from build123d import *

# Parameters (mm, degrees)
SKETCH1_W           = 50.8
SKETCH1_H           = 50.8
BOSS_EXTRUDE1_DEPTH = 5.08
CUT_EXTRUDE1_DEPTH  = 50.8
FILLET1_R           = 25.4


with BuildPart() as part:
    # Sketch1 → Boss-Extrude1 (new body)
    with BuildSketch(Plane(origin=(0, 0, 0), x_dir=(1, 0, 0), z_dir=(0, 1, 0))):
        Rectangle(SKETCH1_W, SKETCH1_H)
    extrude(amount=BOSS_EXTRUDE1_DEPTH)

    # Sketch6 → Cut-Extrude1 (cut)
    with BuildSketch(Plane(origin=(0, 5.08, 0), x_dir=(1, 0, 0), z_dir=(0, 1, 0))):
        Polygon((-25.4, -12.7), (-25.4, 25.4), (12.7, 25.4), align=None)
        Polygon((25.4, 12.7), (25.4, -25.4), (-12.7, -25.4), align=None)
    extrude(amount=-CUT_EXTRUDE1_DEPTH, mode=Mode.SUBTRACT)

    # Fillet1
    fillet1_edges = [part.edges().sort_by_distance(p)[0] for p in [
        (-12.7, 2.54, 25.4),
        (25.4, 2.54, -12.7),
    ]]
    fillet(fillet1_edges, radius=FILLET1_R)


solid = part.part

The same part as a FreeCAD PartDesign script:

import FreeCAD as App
import Part
import Sketcher
from FreeCAD import Vector
Q = App.Units.Quantity


def edges_at(feature, points):
    """Names of the edges that pass closest to the given points."""
    edges = feature.Shape.Edges
    near = lambda p: min(range(len(edges)), key=lambda i: edges[i].distToShape(Part.Vertex(*p))[0])
    return sorted({f"Edge{near(p) + 1}" for p in points})

doc = App.newDocument("Part")
params = doc.addObject("Spreadsheet::Sheet", "Params")
for row, (alias, value) in enumerate([
    ("sketch1_width", "2 in"),
    ("pad1_length", "0.2 in"),
    ("sketch2_width", "1.5 in"),
    ("pocket1_length", "2 in"),
    ("fillet_radius", "1 in"),
], start=1):
    params.set(f"A{row}", alias)
    params.set(f"B{row}", "=" + value)
    params.setAlias(f"B{row}", alias)

body = doc.addObject("PartDesign::Body", "Body")

# Sketch on XZ plane
sketch1 = body.newObject("Sketcher::SketchObject", "Sketch")
sketch1.AttachmentSupport = (doc.getObject("XZ_Plane"), [""])
sketch1.MapMode = "FlatFace"
sketch1.addGeometry([
    Part.LineSegment(Vector(-25, -25, 0), Vector(-25, 25, 0)),
    Part.LineSegment(Vector(-25, 25, 0), Vector(25, 25, 0)),
    Part.LineSegment(Vector(25, 25, 0), Vector(25, -25, 0)),
    Part.LineSegment(Vector(25, -25, 0), Vector(-25, -25, 0)),
], False)
sketch1.addConstraint([
    Sketcher.Constraint("Coincident", 0, 2, 1, 1),
    Sketcher.Constraint("Coincident", 1, 2, 2, 1),
    Sketcher.Constraint("Coincident", 2, 2, 3, 1),
    Sketcher.Constraint("Coincident", 3, 2, 0, 1),
    Sketcher.Constraint("Vertical", 0),
    Sketcher.Constraint("Horizontal", 1),
    Sketcher.Constraint("Vertical", 2),
    Sketcher.Constraint("Horizontal", 3),
    Sketcher.Constraint("Symmetric", 0, 2, 2, 2, -1, 1),
    Sketcher.Constraint("Equal", 3, 0),
    Sketcher.Constraint("DistanceX", 1, 1, 1, 2, Q("2 in")),
])
sketch1.setExpression("Constraints[10]", "Params.sketch1_width")
pad1 = body.newObject("PartDesign::Pad", "Pad")
pad1.Profile = sketch1
pad1.setExpression("Length", "Params.pad1_length")
pad1.Reversed = True

# Sketch on XZ plane
sketch2 = body.newObject("Sketcher::SketchObject", "Sketch001")
sketch2.AttachmentSupport = (doc.getObject("XZ_Plane"), [""])
sketch2.MapMode = "FlatFace"
sketch2.AttachmentOffset = App.Placement(Vector(0, 0, -0.2 * 25.4), App.Rotation())
sketch2.addGeometry([
    Part.LineSegment(Vector(-25, -25, 0), Vector(-25, 13, 0)),  # 0
    Part.LineSegment(Vector(-25, 13, 0), Vector(13, -25, 0)),  # 1
    Part.LineSegment(Vector(13, -25, 0), Vector(-25, -25, 0)),  # 2
    Part.LineSegment(Vector(25, 25, 0), Vector(25, -13, 0)),  # 3
    Part.LineSegment(Vector(25, -13, 0), Vector(-13, 25, 0)),  # 4
    Part.LineSegment(Vector(-13, 25, 0), Vector(25, 25, 0)),  # 5
], False)
sketch2.addConstraint([
    Sketcher.Constraint("Coincident", 0, 2, 1, 1),
    Sketcher.Constraint("Coincident", 1, 2, 2, 1),
    Sketcher.Constraint("Coincident", 2, 2, 0, 1),
    Sketcher.Constraint("Coincident", 3, 2, 4, 1),
    Sketcher.Constraint("Coincident", 4, 2, 5, 1),
    Sketcher.Constraint("Coincident", 5, 2, 3, 1),
    Sketcher.Constraint("Vertical", 0),
    Sketcher.Constraint("Horizontal", 2),
    Sketcher.Constraint("Vertical", 3),
    Sketcher.Constraint("Horizontal", 5),
    Sketcher.Constraint("Symmetric", 0, 2, 3, 2, -1, 1),
    Sketcher.Constraint("Symmetric", 1, 2, 4, 2, -1, 1),
    Sketcher.Constraint("Equal", 5, 0),
    Sketcher.Constraint("DistanceX", 2, 2, 2, 1, Q("1.5 in")),
    Sketcher.Constraint("DistanceX", 0, 2, -1, 1, Q("1 in")),
    Sketcher.Constraint("DistanceY", 1, 2, -1, 1, Q("1 in")),
])
sketch2.setExpression("Constraints[13]", "Params.sketch2_width")
pocket1 = body.newObject("PartDesign::Pocket", "Pocket")
pocket1.Profile = sketch2
pocket1.setExpression("Length", "Params.pocket1_length")
pocket1.Reversed = True
doc.recompute()

fillet = body.newObject("PartDesign::Fillet", "Fillet")
fillet.Base = (pocket1, edges_at(pocket1, [(-12.7, 2.54, 25.4), (25.4, 2.54, -12.7)]))
fillet.setExpression("Radius", "Params.fillet_radius")

doc.recompute()
